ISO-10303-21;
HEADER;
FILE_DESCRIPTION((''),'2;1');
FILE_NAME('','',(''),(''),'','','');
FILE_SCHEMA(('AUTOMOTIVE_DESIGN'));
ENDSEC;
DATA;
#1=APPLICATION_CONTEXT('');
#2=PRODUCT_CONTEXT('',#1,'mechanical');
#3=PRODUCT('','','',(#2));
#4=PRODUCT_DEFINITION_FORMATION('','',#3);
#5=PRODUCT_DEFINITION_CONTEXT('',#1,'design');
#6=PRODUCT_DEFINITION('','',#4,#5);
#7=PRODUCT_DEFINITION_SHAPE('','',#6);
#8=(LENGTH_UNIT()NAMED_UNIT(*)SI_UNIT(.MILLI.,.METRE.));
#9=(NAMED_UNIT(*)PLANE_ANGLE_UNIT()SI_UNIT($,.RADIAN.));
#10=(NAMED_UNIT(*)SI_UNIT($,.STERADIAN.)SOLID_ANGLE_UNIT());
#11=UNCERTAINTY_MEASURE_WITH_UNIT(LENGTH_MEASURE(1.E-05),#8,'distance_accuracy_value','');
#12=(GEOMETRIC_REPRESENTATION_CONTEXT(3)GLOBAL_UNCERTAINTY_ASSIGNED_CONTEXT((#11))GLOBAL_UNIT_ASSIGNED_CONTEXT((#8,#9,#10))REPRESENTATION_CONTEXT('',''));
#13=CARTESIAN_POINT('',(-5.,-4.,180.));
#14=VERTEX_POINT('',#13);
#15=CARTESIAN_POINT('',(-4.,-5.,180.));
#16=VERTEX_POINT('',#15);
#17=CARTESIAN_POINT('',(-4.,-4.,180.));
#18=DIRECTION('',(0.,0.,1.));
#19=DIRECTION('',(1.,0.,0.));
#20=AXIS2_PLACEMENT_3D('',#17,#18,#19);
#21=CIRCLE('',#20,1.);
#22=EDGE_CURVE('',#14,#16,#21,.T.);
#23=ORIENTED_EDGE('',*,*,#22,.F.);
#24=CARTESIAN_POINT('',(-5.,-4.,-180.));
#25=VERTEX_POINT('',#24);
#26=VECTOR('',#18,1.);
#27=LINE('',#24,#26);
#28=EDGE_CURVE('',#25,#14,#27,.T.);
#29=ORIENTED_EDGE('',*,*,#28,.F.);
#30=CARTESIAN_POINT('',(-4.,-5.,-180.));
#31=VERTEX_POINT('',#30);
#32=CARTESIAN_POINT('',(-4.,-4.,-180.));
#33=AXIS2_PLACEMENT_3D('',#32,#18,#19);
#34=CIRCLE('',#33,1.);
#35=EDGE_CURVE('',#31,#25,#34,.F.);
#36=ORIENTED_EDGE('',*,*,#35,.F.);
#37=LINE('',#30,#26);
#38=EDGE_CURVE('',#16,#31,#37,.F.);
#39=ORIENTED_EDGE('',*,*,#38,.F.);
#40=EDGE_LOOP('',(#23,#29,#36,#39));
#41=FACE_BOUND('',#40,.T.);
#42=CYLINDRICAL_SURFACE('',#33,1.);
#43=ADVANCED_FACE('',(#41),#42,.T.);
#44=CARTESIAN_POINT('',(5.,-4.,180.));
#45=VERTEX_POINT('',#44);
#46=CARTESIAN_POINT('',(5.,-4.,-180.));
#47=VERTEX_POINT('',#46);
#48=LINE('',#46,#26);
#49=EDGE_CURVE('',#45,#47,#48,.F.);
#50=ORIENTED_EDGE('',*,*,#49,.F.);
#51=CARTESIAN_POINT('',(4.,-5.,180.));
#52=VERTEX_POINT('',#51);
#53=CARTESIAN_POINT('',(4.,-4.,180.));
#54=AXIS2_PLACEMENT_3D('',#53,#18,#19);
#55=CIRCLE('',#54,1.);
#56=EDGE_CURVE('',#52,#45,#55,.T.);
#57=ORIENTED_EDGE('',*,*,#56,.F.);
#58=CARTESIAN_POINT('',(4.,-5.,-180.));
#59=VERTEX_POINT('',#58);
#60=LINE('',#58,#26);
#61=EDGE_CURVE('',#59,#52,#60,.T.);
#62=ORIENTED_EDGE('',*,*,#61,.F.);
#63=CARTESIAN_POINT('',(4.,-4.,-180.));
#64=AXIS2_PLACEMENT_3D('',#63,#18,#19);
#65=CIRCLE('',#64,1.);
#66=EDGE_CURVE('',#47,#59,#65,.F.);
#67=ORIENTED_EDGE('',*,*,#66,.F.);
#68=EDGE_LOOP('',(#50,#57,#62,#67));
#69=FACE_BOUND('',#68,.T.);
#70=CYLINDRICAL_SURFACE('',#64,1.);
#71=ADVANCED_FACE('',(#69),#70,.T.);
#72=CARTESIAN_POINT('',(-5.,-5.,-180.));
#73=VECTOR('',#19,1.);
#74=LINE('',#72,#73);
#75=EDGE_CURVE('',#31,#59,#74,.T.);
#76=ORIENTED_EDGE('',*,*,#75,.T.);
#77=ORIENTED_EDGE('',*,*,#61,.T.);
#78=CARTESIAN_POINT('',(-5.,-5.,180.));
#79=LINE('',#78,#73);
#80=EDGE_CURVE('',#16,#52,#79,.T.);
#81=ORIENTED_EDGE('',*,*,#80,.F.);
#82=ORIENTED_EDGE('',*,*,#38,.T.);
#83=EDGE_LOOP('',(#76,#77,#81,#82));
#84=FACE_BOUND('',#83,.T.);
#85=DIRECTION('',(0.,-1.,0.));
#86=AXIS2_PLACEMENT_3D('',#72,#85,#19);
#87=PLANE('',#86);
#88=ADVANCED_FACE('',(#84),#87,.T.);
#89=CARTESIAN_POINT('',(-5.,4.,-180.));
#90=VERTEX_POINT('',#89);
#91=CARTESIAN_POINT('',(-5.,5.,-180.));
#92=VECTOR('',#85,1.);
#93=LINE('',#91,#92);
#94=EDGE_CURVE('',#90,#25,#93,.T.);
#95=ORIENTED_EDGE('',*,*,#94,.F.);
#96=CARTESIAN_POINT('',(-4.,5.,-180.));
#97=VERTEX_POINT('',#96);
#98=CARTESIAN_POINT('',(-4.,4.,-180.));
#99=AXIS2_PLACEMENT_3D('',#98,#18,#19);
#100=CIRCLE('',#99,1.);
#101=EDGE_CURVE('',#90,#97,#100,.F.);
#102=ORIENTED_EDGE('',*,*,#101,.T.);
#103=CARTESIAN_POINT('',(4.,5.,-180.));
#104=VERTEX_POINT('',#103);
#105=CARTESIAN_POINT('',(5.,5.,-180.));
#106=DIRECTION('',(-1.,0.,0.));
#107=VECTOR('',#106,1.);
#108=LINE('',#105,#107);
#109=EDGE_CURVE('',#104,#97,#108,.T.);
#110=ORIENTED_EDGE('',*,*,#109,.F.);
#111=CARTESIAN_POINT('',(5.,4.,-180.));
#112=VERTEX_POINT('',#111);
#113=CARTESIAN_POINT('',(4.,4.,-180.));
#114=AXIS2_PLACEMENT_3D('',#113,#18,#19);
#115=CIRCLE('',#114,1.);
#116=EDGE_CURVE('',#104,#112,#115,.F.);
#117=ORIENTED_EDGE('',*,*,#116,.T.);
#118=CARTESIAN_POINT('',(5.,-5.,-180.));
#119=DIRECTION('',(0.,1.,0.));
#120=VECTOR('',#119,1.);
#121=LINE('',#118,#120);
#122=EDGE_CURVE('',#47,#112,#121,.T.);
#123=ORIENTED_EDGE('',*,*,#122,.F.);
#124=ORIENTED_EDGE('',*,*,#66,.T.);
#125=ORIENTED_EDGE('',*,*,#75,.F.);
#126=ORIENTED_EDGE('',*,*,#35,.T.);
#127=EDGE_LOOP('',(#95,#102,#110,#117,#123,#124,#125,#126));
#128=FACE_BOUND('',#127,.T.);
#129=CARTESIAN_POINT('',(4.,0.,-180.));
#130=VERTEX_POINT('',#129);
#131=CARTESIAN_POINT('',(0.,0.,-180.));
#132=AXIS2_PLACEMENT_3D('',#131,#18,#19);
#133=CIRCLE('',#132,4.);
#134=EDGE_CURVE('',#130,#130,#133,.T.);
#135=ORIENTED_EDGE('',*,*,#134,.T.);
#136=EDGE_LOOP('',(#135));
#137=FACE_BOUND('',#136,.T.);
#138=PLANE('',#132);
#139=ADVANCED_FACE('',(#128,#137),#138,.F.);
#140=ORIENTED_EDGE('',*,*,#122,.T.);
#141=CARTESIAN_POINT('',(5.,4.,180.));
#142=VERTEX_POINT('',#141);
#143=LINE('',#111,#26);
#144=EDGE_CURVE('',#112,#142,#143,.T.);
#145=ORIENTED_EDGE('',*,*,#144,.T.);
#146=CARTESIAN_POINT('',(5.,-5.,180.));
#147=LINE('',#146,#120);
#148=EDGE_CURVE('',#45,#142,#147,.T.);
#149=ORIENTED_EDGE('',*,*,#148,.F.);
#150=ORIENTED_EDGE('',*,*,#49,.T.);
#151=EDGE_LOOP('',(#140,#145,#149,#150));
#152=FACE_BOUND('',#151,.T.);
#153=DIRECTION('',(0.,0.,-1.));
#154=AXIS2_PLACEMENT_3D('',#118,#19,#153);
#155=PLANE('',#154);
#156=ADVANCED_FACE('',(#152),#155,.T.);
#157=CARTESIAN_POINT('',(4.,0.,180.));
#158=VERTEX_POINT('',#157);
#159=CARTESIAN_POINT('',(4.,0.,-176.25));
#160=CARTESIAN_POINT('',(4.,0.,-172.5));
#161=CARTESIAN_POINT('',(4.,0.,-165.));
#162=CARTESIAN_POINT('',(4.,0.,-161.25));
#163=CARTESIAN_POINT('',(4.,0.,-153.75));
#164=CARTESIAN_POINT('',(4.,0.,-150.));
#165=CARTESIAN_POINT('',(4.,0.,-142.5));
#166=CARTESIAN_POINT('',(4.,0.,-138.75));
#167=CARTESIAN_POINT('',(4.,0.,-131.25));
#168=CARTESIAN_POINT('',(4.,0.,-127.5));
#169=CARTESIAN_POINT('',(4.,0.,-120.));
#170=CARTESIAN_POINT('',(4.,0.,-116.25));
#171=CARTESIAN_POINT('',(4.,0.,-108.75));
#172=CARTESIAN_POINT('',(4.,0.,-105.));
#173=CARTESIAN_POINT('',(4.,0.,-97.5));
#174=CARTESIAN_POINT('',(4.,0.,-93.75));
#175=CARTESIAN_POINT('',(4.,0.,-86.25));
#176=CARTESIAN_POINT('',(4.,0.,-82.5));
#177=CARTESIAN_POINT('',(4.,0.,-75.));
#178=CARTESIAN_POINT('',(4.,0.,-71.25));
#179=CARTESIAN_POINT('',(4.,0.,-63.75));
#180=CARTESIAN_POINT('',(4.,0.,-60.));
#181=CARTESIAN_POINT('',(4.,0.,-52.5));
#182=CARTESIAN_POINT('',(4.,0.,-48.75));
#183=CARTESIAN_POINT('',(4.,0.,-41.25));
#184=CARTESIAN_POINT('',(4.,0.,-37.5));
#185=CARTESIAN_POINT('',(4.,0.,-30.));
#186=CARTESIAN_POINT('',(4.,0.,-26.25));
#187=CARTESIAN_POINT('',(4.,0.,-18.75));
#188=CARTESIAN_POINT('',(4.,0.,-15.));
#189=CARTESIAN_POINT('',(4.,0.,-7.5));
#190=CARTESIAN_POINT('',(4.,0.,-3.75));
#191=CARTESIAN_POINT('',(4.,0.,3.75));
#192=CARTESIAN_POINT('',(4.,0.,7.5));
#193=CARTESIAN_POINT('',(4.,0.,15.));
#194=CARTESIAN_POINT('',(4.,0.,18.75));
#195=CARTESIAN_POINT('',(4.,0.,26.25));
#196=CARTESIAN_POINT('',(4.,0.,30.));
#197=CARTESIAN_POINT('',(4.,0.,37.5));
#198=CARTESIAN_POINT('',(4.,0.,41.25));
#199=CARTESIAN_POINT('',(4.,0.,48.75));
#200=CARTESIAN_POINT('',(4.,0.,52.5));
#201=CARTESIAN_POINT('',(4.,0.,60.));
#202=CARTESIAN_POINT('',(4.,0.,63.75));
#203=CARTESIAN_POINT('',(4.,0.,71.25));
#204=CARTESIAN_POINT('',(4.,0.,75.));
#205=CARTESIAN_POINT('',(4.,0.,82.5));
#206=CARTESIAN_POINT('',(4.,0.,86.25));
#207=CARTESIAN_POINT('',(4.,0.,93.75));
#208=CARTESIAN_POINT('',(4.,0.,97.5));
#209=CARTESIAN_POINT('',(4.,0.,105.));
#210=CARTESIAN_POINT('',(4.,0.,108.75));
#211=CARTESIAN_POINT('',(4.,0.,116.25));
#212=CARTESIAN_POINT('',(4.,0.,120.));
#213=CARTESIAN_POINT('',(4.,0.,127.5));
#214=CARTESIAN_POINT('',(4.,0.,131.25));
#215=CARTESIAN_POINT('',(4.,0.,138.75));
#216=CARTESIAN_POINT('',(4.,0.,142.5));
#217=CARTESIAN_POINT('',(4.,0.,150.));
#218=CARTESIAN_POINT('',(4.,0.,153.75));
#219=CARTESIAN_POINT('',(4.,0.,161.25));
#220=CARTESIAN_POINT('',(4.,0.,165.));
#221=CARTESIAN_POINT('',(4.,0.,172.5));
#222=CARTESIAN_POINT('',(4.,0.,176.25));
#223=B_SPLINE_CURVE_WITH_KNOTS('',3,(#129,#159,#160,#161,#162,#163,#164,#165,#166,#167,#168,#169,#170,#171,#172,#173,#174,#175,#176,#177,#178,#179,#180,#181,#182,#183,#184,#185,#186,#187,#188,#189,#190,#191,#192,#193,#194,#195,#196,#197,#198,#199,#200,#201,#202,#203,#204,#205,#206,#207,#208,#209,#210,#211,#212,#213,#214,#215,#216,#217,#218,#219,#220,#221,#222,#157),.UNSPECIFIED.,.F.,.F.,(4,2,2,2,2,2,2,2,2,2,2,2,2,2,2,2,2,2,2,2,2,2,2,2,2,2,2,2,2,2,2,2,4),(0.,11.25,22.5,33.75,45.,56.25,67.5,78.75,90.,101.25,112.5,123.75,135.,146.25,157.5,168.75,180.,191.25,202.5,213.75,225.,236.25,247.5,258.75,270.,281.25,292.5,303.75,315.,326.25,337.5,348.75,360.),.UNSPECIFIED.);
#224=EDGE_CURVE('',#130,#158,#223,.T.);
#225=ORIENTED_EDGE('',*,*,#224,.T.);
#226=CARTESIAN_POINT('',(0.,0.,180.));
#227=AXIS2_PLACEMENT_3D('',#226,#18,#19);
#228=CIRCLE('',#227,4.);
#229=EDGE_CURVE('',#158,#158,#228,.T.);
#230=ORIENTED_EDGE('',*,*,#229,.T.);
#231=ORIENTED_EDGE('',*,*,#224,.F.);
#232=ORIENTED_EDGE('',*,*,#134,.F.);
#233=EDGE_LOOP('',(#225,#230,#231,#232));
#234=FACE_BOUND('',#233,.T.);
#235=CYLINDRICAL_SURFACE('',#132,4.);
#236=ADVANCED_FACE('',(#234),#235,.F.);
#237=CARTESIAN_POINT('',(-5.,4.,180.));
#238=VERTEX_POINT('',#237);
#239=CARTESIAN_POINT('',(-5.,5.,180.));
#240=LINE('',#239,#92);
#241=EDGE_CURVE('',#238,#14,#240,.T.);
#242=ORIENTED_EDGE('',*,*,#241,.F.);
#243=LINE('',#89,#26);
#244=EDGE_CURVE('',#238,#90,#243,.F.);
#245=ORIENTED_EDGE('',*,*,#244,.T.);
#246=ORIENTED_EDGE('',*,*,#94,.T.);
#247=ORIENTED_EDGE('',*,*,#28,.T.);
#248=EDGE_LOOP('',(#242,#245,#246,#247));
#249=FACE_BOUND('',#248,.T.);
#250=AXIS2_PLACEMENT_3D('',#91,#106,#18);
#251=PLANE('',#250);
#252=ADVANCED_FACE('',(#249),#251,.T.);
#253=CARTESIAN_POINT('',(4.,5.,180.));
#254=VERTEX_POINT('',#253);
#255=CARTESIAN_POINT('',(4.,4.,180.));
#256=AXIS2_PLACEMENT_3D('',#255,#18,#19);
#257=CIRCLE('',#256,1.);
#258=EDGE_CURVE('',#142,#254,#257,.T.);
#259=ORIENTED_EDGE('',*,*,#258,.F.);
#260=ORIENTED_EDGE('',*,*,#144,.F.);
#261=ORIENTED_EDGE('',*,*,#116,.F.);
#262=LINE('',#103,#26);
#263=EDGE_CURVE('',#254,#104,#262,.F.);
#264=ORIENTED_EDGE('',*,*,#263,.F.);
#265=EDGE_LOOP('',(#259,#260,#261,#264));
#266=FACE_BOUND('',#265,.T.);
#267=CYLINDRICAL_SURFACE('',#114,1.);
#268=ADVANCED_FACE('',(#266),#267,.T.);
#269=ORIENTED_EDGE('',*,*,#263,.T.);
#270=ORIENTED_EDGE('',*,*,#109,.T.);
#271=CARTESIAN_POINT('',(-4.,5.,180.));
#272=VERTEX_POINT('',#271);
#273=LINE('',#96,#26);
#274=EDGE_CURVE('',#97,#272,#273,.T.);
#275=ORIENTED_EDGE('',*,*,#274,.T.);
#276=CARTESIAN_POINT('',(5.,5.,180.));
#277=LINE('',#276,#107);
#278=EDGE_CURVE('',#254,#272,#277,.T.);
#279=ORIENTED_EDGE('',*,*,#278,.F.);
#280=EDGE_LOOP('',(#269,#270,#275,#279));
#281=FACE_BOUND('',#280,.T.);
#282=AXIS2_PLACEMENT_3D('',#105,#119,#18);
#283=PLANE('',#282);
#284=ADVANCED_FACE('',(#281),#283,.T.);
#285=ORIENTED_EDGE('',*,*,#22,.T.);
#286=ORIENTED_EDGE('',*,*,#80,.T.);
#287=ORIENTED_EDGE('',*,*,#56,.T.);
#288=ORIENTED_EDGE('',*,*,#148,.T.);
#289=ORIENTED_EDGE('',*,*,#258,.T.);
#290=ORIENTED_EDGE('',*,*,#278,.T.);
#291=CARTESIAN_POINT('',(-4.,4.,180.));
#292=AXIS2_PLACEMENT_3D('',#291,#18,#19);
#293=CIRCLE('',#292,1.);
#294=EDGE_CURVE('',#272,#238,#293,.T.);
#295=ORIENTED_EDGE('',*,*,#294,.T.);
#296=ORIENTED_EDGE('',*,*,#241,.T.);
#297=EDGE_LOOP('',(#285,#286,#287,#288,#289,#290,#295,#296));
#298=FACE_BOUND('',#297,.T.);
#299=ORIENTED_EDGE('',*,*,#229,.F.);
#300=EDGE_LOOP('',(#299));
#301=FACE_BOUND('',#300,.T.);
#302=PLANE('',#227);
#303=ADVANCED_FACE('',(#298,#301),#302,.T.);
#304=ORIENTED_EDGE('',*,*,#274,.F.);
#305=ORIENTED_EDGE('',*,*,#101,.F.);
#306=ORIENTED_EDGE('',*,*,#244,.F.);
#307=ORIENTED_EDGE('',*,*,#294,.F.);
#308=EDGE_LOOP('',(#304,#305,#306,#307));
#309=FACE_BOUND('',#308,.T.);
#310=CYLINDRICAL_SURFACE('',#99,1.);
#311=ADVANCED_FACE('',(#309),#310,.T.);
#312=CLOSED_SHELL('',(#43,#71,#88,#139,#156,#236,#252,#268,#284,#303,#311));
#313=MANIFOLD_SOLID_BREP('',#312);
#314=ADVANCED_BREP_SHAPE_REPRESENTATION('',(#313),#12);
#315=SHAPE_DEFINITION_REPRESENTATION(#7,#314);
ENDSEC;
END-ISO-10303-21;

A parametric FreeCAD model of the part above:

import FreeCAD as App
import Part
import Sketcher

V = App.Vector


def edges_at(feature, points):
    """Names of the edges that pass closest to the given points."""
    edges = feature.Shape.Edges
    near = lambda p: min(range(len(edges)), key=lambda i: edges[i].distToShape(Part.Vertex(*p))[0])
    return sorted({f"Edge{near(p) + 1}" for p in points})

doc = App.newDocument("Part")
body = doc.addObject("PartDesign::Body", "Body")

# Sketch on XY plane
sketch1 = doc.addObject("Sketcher::SketchObject", "Sketch")
body.addObject(sketch1)
sketch1.AttachmentSupport = (doc.XY_Plane, [""])
sketch1.MapMode = "FlatFace"
sketch1.addGeometry([
    Part.LineSegment(V(-5, 5, 0), V(-5, -5, 0)),  # 0
    Part.LineSegment(V(-5, -5, 0), V(5, -5, 0)),  # 1
    Part.LineSegment(V(5, -5, 0), V(5, 5, 0)),  # 2
    Part.LineSegment(V(5, 5, 0), V(-5, 5, 0)),  # 3
    Part.Circle(V(0, 0, 0), V(0, 0, 1), 4),  # 4
], False)
sketch1.addConstraint([
    Sketcher.Constraint("Coincident", 0, 2, 1, 1),
    Sketcher.Constraint("Coincident", 1, 2, 2, 1),
    Sketcher.Constraint("Coincident", 2, 2, 3, 1),
    Sketcher.Constraint("Coincident", 3, 2, 0, 1),
    Sketcher.Constraint("Vertical", 0),
    Sketcher.Constraint("Horizontal", 1),
    Sketcher.Constraint("Vertical", 2),
    Sketcher.Constraint("Horizontal", 3),
    Sketcher.Constraint("Coincident", 4, 3, -1, 1),
    Sketcher.Constraint("Symmetric", 0, 2, 2, 2, -1, 1),
    Sketcher.Constraint("Equal", 3, 0),
    Sketcher.Constraint("Diameter", 4, 8.0),
    Sketcher.Constraint("DistanceX", 1, 1, 1, 2, 10.0),
])
pad1 = doc.addObject("PartDesign::Pad", "Pad")
body.addObject(pad1)
pad1.Profile = sketch1
pad1.Type = "TwoLengths"
pad1.Length = 180
pad1.Length2 = 180
doc.recompute()

fillet = doc.addObject("PartDesign::Fillet", "Fillet")
body.addObject(fillet)
fillet.Base = (pad1, edges_at(pad1, [
    (-5, 5, 0),
    (5, 5, 0),
    (5, -5, 0),
    (-5, -5, 0),
]))
fillet.Radius = 1

doc.recompute()
